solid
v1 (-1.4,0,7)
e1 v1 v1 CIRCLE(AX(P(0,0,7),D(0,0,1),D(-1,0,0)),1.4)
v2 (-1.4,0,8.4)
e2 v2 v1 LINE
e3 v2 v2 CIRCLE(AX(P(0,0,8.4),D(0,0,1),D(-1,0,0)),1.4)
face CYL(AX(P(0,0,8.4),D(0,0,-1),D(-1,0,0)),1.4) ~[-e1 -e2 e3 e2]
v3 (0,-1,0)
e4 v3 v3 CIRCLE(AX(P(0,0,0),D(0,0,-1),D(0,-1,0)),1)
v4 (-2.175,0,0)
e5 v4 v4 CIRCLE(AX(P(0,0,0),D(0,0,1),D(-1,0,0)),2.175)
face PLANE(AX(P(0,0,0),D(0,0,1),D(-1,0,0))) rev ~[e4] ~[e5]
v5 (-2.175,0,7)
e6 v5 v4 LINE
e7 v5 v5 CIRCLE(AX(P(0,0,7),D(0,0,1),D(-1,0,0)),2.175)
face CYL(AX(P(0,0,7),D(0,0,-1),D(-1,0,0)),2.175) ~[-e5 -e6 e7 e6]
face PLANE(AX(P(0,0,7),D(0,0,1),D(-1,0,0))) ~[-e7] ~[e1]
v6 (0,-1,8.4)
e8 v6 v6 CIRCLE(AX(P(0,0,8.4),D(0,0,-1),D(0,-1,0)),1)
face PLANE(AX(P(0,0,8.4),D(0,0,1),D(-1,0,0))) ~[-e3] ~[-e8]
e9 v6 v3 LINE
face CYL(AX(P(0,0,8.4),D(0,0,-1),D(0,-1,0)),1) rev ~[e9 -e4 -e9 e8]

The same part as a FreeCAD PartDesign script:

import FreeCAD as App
import Part
import Sketcher

V = App.Vector

doc = App.newDocument("Part")
params = doc.addObject("Spreadsheet::Sheet", "Params")
for row, (alias, value) in enumerate([
    ("sketch1_height", "7 mm"),
    ("sketch1_width", "1.4 mm"),
    ("revolution_angle", "360 deg"),
    ("sketch2_diameter", "2 mm"),
    ("hole_diameter", "2 mm"),
], start=1):
    params.set(f"A{row}", alias)
    params.set(f"B{row}", "=" + value)
    params.setAlias(f"B{row}", alias)

body = doc.addObject("PartDesign::Body", "Body")

# Sketch on XZ plane
sketch1 = body.newObject("Sketcher::SketchObject", "Sketch")
sketch1.AttachmentSupport = (doc.getObject("XZ_Plane"), [""])
sketch1.MapMode = "FlatFace"
sketch1.addGeometry([
    Part.LineSegment(V(0, 8.4, 0), V(0, 0, 0)),  # 0
    Part.LineSegment(V(0, 0, 0), V(-2.2, 0, 0)),  # 1
    Part.LineSegment(V(-2.2, 0, 0), V(-2.2, 7, 0)),  # 2
    Part.LineSegment(V(-2.2, 7, 0), V(-1.4, 7, 0)),  # 3
    Part.LineSegment(V(-1.4, 7, 0), V(-1.4, 8.4, 0)),  # 4
    Part.LineSegment(V(-1.4, 8.4, 0), V(0, 8.4, 0)),  # 5
], False)
sketch1.addConstraint([
    Sketcher.Constraint("Coincident", 0, 2, 1, 1),
    Sketcher.Constraint("Coincident", 1, 2, 2, 1),
    Sketcher.Constraint("Coincident", 2, 2, 3, 1),
    Sketcher.Constraint("Coincident", 3, 2, 4, 1),
    Sketcher.Constraint("Coincident", 4, 2, 5, 1),
    Sketcher.Constraint("Coincident", 5, 2, 0, 1),
    Sketcher.Constraint("Vertical", 0),
    Sketcher.Constraint("Horizontal", 1),
    Sketcher.Constraint("Vertical", 2),
    Sketcher.Constraint("Horizontal", 3),
    Sketcher.Constraint("Vertical", 4),
    Sketcher.Constraint("Horizontal", 5),
    Sketcher.Constraint("Coincident", 0, 2, -1, 1),
    Sketcher.Constraint("Equal", 5, 4),
    Sketcher.Constraint("DistanceY", 2, 1, 2, 2, 7.0),
    Sketcher.Constraint("DistanceX", 5, 1, 5, 2, 1.4),
    Sketcher.Constraint("DistanceX", 1, 2, 1, 1, 2.175),
])
sketch1.setExpression("Constraints[14]", "Params.sketch1_height")
sketch1.setExpression("Constraints[15]", "Params.sketch1_width")
revolution = body.newObject("PartDesign::Revolution", "Revolution")
revolution.Profile = sketch1
revolution.ReferenceAxis = (sketch1, ["V_Axis"])
revolution.setExpression("Angle", "Params.revolution_angle")

# Sketch on XY plane
sketch2 = body.newObject("Sketcher::SketchObject", "Sketch001")
sketch2.AttachmentSupport = (doc.getObject("XY_Plane"), [""])
sketch2.MapMode = "FlatFace"
sketch2.AttachmentOffset = App.Placement(V(0, 0, 8.4), App.Rotation())
sketch2.addGeometry(Part.Circle(V(0, 0, 0), V(0, 0, 1), 1), False)
sketch2.addConstraint([
    Sketcher.Constraint("Coincident", 0, 3, -1, 1),
    Sketcher.Constraint("Diameter", 0, 2.0),
])
sketch2.setExpression("Constraints[1]", "Params.sketch2_diameter")
doc.recompute()
hole = body.newObject("PartDesign::Hole", "Hole")
hole.Profile = sketch2
hole.ThreadType = "None"
hole.setExpression("Diameter", "Params.hole_diameter")
hole.DepthType = "ThroughAll"

doc.recompute()
